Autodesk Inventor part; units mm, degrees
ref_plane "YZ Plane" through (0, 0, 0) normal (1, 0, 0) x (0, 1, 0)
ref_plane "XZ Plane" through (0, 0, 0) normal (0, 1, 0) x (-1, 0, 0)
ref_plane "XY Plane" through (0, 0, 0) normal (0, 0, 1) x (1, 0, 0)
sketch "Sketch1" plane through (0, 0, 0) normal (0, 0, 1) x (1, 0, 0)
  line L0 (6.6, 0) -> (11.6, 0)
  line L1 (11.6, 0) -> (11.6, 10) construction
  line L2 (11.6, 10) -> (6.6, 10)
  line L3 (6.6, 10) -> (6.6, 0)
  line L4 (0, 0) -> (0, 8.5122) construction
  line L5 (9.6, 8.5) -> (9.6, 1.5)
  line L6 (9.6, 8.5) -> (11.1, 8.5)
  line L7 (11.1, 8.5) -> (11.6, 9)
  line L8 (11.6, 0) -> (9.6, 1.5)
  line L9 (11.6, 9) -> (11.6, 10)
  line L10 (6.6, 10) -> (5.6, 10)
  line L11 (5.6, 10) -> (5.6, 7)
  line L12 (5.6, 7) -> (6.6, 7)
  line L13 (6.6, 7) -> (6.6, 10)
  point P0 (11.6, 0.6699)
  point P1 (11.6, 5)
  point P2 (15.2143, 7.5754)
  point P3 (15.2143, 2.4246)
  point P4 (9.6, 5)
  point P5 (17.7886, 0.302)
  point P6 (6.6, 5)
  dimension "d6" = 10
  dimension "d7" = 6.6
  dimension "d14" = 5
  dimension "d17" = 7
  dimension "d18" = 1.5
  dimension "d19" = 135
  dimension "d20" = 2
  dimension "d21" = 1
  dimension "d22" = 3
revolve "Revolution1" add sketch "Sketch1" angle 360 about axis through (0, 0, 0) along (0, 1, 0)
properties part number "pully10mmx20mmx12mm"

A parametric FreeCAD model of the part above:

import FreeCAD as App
import Part
import Sketcher
from FreeCAD import Vector
Q = App.Units.Quantity


def add_polygon(sketch, points):
    """Adds a closed chain of lines whose ends are joined by coincident constraints."""
    first, n = sketch.GeometryCount, len(points)
    for a, b in zip(points, points[1:] + points[:1]):
        sketch.addGeometry(Part.LineSegment(App.Vector(*a, 0), App.Vector(*b, 0)), False)
    for i in range(n):
        sketch.addConstraint(Sketcher.Constraint("Coincident", first + i, 2, first + (i + 1) % n, 1))

doc = App.newDocument("Part")
params = doc.addObject("Spreadsheet::Sheet", "Params")
for row, (alias, value) in enumerate([
    ("sketch1_width", "5 mm"),
    ("sketch1_width2", "1 mm"),
    ("sketch1_height", "7 mm"),
    ("sketch1_height2", "3 mm"),
    ("sketch1_width3", "1.5 mm"),
    ("revolution_angle", "360 deg"),
], start=1):
    params.set(f"A{row}", alias)
    params.set(f"B{row}", "=" + value)
    params.setAlias(f"B{row}", alias)

body = doc.addObject("PartDesign::Body", "Body")

sketch1 = body.newObject("Sketcher::SketchObject", "Sketch")
sketch1.AttachmentSupport = (doc.getObject("XY_Plane"), [""])
sketch1.MapMode = "FlatFace"
add_polygon(sketch1, [(6.6, 7), (6.6, 0), (11.6, 0), (9.6, 1.5), (9.6, 8.5), (11.1, 8.5), (11.6, 9), (11.6, 10), (5.6, 10), (5.6, 7)])
sketch1.addConstraint(Sketcher.Constraint("Vertical", 0))
sketch1.addConstraint(Sketcher.Constraint("Horizontal", 1))
sketch1.addConstraint(Sketcher.Constraint("Vertical", 3))
sketch1.addConstraint(Sketcher.Constraint("Horizontal", 4))
sketch1.addConstraint(Sketcher.Constraint("Vertical", 6))
sketch1.addConstraint(Sketcher.Constraint("Horizontal", 7))
sketch1.addConstraint(Sketcher.Constraint("Vertical", 8))
sketch1.addConstraint(Sketcher.Constraint("Horizontal", 9))
sketch1.addConstraint(Sketcher.Constraint("PointOnObject", 0, 2, -1))
sketch1.addConstraint(Sketcher.Constraint("Vertical", 1, 2, 5, 2))
sketch1.addConstraint(Sketcher.Constraint("Equal", 0, 3))
sketch1.addConstraint(Sketcher.Constraint("Equal", 9, 6))
sketch1.addConstraint(Sketcher.Constraint("DistanceX", 1, 1, 1, 2, Q("5 mm")))
sketch1.addConstraint(Sketcher.Constraint("DistanceX", 9, 1, 9, 2, Q("1 mm")))
sketch1.addConstraint(Sketcher.Constraint("DistanceY", 0, 2, 0, 1, Q("7 mm")))
sketch1.addConstraint(Sketcher.Constraint("DistanceY", 8, 2, 8, 1, Q("3 mm")))
sketch1.addConstraint(Sketcher.Constraint("DistanceX", 4, 1, 4, 2, Q("1.5 mm")))
sketch1.addConstraint(Sketcher.Constraint("DistanceX", 2, 2, 1, 2, Q("2 mm")))
sketch1.addConstraint(Sketcher.Constraint("DistanceX", -1, 1, 0, 2, Q("6.6 mm")))
sketch1.addConstraint(Sketcher.Constraint("DistanceY", -1, 1, 2, 2, Q("1.5 mm")))
sketch1.setExpression("Constraints[22]", "Params.sketch1_width")
sketch1.setExpression("Constraints[23]", "Params.sketch1_width2")
sketch1.setExpression("Constraints[24]", "Params.sketch1_height")
sketch1.setExpression("Constraints[25]", "Params.sketch1_height2")
sketch1.setExpression("Constraints[26]", "Params.sketch1_width3")
revolution = body.newObject("PartDesign::Revolution", "Revolution")
revolution.Profile = sketch1
revolution.ReferenceAxis = (sketch1, ["V_Axis"])
revolution.setExpression("Angle", "Params.revolution_angle")

doc.recompute()
